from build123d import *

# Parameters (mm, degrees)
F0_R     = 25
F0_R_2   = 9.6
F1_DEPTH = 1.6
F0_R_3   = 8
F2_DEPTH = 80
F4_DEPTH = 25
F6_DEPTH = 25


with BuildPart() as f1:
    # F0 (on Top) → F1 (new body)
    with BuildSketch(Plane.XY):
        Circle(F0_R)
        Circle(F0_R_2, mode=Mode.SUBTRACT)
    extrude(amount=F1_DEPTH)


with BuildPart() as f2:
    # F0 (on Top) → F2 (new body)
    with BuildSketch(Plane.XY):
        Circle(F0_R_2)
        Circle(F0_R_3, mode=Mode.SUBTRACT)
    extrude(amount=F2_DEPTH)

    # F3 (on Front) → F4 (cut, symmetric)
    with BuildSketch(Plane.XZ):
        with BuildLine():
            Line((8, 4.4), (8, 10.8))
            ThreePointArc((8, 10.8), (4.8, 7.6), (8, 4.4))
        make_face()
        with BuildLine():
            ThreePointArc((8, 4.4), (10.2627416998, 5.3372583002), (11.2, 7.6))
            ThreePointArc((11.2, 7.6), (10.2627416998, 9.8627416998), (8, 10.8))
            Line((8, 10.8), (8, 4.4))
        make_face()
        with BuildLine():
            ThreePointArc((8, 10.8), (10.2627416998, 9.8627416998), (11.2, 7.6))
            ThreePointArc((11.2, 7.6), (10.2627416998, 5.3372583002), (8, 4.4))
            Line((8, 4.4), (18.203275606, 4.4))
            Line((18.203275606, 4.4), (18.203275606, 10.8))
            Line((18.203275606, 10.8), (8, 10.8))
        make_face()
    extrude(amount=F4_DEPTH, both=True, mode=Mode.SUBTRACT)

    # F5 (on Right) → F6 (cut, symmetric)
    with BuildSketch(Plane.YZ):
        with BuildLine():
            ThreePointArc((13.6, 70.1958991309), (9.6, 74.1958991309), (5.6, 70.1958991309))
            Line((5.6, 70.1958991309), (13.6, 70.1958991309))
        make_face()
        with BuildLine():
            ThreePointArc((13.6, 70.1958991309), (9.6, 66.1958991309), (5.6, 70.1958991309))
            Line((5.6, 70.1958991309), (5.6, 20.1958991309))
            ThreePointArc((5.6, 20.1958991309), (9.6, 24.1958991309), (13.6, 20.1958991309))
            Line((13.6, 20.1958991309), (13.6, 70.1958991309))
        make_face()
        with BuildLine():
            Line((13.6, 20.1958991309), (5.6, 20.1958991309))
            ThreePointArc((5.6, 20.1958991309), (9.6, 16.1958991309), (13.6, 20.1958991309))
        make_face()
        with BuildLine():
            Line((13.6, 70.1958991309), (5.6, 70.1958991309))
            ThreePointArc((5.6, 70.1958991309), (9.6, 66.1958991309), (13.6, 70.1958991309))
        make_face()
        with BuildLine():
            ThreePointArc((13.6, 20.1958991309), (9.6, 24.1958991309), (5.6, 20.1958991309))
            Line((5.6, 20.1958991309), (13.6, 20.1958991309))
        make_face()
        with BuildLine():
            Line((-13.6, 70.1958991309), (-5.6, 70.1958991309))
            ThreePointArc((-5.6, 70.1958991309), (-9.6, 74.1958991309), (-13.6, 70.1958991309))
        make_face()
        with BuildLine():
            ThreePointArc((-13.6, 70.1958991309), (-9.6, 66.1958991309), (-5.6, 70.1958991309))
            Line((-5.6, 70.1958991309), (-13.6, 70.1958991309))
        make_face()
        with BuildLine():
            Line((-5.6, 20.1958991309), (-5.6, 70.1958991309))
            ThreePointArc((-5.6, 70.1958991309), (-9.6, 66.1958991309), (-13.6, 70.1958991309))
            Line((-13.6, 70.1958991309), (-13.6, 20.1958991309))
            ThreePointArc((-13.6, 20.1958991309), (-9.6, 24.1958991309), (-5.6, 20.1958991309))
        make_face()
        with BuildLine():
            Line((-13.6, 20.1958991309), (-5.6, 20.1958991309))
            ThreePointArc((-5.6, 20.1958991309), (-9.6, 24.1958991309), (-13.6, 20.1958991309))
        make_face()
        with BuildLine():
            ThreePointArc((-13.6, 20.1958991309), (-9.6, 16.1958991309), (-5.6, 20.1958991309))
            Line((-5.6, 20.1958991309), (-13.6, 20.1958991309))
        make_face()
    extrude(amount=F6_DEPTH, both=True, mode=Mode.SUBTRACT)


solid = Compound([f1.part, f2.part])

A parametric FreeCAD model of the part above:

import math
import FreeCAD as App
import Part
import Sketcher

V = App.Vector
Q = App.Units.Quantity

doc = App.newDocument("Part")
body = doc.addObject("PartDesign::Body", "Body")

# Sketch on XY plane
sketch1 = body.newObject("Sketcher::SketchObject", "Sketch")
sketch1.AttachmentSupport = (doc.getObject("XY_Plane"), [""])
sketch1.MapMode = "FlatFace"
sketch1.addGeometry(Part.Circle(V(0, 0, 0), V(0, 0, 1), 25), False)
sketch1.addGeometry(Part.Circle(V(0, 0, 0), V(0, 0, 1), 10), False)
sketch1.addConstraint(Sketcher.Constraint("Coincident", 0, 3, -1, 1))
sketch1.addConstraint(Sketcher.Constraint("Coincident", 1, 3, -1, 1))
sketch1.addConstraint(Sketcher.Constraint("Diameter", 0, Q("50 mm")))
sketch1.addConstraint(Sketcher.Constraint("Diameter", 1, Q("19.2 mm")))
pad1 = body.newObject("PartDesign::Pad", "Pad")
pad1.Profile = sketch1
pad1.Length = 1.6
body2 = doc.addObject("PartDesign::Body", "Body001")

# Sketch on XY plane
sketch2 = body2.newObject("Sketcher::SketchObject", "Sketch001")
sketch2.AttachmentSupport = (doc.getObject("XY_Plane001"), [""])
sketch2.MapMode = "FlatFace"
sketch2.addGeometry(Part.Circle(V(0, 0, 0), V(0, 0, 1), 10), False)
sketch2.addGeometry(Part.Circle(V(0, 0, 0), V(0, 0, 1), 8), False)
sketch2.addConstraint(Sketcher.Constraint("Coincident", 0, 3, -1, 1))
sketch2.addConstraint(Sketcher.Constraint("Coincident", 1, 3, -1, 1))
sketch2.addConstraint(Sketcher.Constraint("Diameter", 1, Q("16 mm")))
sketch2.addConstraint(Sketcher.Constraint("Diameter", 0, Q("19.2 mm")))
pad2 = body2.newObject("PartDesign::Pad", "Pad001")
pad2.Profile = sketch2
pad2.Length = 80

# Sketch on XZ plane
sketch3 = body2.newObject("Sketcher::SketchObject", "Sketch002")
sketch3.AttachmentSupport = (doc.getObject("XZ_Plane001"), [""])
sketch3.MapMode = "FlatFace"
sketch3.addGeometry(Part.ArcOfCircle(Part.Circle(V(8, 7.6, 0), V(0, 0, 1), 3.2), math.radians(90), math.radians(270)), False)
sketch3.addGeometry(Part.LineSegment(V(8, 4.4, 0), V(18.2, 4.4, 0)), False)
sketch3.addGeometry(Part.LineSegment(V(18.2, 4.4, 0), V(18.2, 10.8, 0)), False)
sketch3.addGeometry(Part.LineSegment(V(18.2, 10.8, 0), V(8, 10.8, 0)), False)
sketch3.addConstraint(Sketcher.Constraint("Tangent", 0, 2, 1, 1))
sketch3.addConstraint(Sketcher.Constraint("Coincident", 1, 2, 2, 1))
sketch3.addConstraint(Sketcher.Constraint("Coincident", 2, 2, 3, 1))
sketch3.addConstraint(Sketcher.Constraint("Tangent", 3, 2, 0, 1))
sketch3.addConstraint(Sketcher.Constraint("Horizontal", 1))
sketch3.addConstraint(Sketcher.Constraint("Vertical", 2))
sketch3.addConstraint(Sketcher.Constraint("Horizontal", 3))
sketch3.addConstraint(Sketcher.Constraint("Radius", 0, Q("3.2 mm")))
sketch3.addConstraint(Sketcher.Constraint("DistanceX", -1, 1, 0, 3, Q("8 mm")))
sketch3.addConstraint(Sketcher.Constraint("DistanceY", -1, 1, 0, 3, Q("7.6 mm")))
sketch3.addConstraint(Sketcher.Constraint("DistanceX", 1, 1, 1, 2, Q("10.203276 mm")))
pocket1 = body2.newObject("PartDesign::Pocket", "Pocket")
pocket1.Profile = sketch3
pocket1.Length = 50
pocket1.Midplane = True

# Sketch on YZ plane
sketch4 = body2.newObject("Sketcher::SketchObject", "Sketch003")
sketch4.AttachmentSupport = (doc.getObject("YZ_Plane001"), [""])
sketch4.MapMode = "FlatFace"
sketch4.addGeometry(Part.ArcOfCircle(Part.Circle(V(9.6, 70.2, 0), V(0, 0, 1), 4), math.radians(0), math.radians(180)), False)
sketch4.addGeometry(Part.LineSegment(V(5.6, 70.2, 0), V(5.6, 20.2, 0)), False)
sketch4.addGeometry(Part.ArcOfCircle(Part.Circle(V(9.6, 20.2, 0), V(0, 0, 1), 4), math.radians(180), math.radians(360)), False)
sketch4.addGeometry(Part.LineSegment(V(13.6, 20.2, 0), V(13.6, 70.2, 0)), False)
sketch4.addGeometry(Part.ArcOfCircle(Part.Circle(V(-9.6, 70.2, 0), V(0, 0, 1), 4), math.radians(0), math.radians(180)), False)
sketch4.addGeometry(Part.LineSegment(V(-13.6, 70.2, 0), V(-13.6, 20.2, 0)), False)
sketch4.addGeometry(Part.ArcOfCircle(Part.Circle(V(-9.6, 20.2, 0), V(0, 0, 1), 4), math.radians(180), math.radians(360)), False)
sketch4.addGeometry(Part.LineSegment(V(-5.6, 20.2, 0), V(-5.6, 70.2, 0)), False)
sketch4.addConstraint(Sketcher.Constraint("Tangent", 0, 2, 1, 1))
sketch4.addConstraint(Sketcher.Constraint("Tangent", 1, 2, 2, 1))
sketch4.addConstraint(Sketcher.Constraint("Tangent", 2, 2, 3, 1))
sketch4.addConstraint(Sketcher.Constraint("Tangent", 3, 2, 0, 1))
sketch4.addConstraint(Sketcher.Constraint("Tangent", 4, 2, 5, 1))
sketch4.addConstraint(Sketcher.Constraint("Tangent", 5, 2, 6, 1))
sketch4.addConstraint(Sketcher.Constraint("Tangent", 6, 2, 7, 1))
sketch4.addConstraint(Sketcher.Constraint("Tangent", 7, 2, 4, 1))
sketch4.addConstraint(Sketcher.Constraint("Vertical", 1))
sketch4.addConstraint(Sketcher.Constraint("Vertical", 3))
sketch4.addConstraint(Sketcher.Constraint("Vertical", 5))
sketch4.addConstraint(Sketcher.Constraint("Vertical", 7))
sketch4.addConstraint(Sketcher.Constraint("Equal", 2, 4))
sketch4.addConstraint(Sketcher.Constraint("Symmetric", 0, 3, 4, 3, -2))
sketch4.addConstraint(Sketcher.Constraint("Horizontal", 2, 3, 6, 3))
sketch4.addConstraint(Sketcher.Constraint("Radius", 0, Q("4 mm")))
sketch4.addConstraint(Sketcher.Constraint("DistanceY", 1, 2, 1, 1, Q("50 mm")))
sketch4.addConstraint(Sketcher.Constraint("DistanceX", -1, 1, 0, 3, Q("9.6 mm")))
sketch4.addConstraint(Sketcher.Constraint("DistanceY", -1, 1, 0, 3, Q("70.195899 mm")))
pocket2 = body2.newObject("PartDesign::Pocket", "Pocket001")
pocket2.Profile = sketch4
pocket2.Length = 50
pocket2.Midplane = True

doc.recompute()
